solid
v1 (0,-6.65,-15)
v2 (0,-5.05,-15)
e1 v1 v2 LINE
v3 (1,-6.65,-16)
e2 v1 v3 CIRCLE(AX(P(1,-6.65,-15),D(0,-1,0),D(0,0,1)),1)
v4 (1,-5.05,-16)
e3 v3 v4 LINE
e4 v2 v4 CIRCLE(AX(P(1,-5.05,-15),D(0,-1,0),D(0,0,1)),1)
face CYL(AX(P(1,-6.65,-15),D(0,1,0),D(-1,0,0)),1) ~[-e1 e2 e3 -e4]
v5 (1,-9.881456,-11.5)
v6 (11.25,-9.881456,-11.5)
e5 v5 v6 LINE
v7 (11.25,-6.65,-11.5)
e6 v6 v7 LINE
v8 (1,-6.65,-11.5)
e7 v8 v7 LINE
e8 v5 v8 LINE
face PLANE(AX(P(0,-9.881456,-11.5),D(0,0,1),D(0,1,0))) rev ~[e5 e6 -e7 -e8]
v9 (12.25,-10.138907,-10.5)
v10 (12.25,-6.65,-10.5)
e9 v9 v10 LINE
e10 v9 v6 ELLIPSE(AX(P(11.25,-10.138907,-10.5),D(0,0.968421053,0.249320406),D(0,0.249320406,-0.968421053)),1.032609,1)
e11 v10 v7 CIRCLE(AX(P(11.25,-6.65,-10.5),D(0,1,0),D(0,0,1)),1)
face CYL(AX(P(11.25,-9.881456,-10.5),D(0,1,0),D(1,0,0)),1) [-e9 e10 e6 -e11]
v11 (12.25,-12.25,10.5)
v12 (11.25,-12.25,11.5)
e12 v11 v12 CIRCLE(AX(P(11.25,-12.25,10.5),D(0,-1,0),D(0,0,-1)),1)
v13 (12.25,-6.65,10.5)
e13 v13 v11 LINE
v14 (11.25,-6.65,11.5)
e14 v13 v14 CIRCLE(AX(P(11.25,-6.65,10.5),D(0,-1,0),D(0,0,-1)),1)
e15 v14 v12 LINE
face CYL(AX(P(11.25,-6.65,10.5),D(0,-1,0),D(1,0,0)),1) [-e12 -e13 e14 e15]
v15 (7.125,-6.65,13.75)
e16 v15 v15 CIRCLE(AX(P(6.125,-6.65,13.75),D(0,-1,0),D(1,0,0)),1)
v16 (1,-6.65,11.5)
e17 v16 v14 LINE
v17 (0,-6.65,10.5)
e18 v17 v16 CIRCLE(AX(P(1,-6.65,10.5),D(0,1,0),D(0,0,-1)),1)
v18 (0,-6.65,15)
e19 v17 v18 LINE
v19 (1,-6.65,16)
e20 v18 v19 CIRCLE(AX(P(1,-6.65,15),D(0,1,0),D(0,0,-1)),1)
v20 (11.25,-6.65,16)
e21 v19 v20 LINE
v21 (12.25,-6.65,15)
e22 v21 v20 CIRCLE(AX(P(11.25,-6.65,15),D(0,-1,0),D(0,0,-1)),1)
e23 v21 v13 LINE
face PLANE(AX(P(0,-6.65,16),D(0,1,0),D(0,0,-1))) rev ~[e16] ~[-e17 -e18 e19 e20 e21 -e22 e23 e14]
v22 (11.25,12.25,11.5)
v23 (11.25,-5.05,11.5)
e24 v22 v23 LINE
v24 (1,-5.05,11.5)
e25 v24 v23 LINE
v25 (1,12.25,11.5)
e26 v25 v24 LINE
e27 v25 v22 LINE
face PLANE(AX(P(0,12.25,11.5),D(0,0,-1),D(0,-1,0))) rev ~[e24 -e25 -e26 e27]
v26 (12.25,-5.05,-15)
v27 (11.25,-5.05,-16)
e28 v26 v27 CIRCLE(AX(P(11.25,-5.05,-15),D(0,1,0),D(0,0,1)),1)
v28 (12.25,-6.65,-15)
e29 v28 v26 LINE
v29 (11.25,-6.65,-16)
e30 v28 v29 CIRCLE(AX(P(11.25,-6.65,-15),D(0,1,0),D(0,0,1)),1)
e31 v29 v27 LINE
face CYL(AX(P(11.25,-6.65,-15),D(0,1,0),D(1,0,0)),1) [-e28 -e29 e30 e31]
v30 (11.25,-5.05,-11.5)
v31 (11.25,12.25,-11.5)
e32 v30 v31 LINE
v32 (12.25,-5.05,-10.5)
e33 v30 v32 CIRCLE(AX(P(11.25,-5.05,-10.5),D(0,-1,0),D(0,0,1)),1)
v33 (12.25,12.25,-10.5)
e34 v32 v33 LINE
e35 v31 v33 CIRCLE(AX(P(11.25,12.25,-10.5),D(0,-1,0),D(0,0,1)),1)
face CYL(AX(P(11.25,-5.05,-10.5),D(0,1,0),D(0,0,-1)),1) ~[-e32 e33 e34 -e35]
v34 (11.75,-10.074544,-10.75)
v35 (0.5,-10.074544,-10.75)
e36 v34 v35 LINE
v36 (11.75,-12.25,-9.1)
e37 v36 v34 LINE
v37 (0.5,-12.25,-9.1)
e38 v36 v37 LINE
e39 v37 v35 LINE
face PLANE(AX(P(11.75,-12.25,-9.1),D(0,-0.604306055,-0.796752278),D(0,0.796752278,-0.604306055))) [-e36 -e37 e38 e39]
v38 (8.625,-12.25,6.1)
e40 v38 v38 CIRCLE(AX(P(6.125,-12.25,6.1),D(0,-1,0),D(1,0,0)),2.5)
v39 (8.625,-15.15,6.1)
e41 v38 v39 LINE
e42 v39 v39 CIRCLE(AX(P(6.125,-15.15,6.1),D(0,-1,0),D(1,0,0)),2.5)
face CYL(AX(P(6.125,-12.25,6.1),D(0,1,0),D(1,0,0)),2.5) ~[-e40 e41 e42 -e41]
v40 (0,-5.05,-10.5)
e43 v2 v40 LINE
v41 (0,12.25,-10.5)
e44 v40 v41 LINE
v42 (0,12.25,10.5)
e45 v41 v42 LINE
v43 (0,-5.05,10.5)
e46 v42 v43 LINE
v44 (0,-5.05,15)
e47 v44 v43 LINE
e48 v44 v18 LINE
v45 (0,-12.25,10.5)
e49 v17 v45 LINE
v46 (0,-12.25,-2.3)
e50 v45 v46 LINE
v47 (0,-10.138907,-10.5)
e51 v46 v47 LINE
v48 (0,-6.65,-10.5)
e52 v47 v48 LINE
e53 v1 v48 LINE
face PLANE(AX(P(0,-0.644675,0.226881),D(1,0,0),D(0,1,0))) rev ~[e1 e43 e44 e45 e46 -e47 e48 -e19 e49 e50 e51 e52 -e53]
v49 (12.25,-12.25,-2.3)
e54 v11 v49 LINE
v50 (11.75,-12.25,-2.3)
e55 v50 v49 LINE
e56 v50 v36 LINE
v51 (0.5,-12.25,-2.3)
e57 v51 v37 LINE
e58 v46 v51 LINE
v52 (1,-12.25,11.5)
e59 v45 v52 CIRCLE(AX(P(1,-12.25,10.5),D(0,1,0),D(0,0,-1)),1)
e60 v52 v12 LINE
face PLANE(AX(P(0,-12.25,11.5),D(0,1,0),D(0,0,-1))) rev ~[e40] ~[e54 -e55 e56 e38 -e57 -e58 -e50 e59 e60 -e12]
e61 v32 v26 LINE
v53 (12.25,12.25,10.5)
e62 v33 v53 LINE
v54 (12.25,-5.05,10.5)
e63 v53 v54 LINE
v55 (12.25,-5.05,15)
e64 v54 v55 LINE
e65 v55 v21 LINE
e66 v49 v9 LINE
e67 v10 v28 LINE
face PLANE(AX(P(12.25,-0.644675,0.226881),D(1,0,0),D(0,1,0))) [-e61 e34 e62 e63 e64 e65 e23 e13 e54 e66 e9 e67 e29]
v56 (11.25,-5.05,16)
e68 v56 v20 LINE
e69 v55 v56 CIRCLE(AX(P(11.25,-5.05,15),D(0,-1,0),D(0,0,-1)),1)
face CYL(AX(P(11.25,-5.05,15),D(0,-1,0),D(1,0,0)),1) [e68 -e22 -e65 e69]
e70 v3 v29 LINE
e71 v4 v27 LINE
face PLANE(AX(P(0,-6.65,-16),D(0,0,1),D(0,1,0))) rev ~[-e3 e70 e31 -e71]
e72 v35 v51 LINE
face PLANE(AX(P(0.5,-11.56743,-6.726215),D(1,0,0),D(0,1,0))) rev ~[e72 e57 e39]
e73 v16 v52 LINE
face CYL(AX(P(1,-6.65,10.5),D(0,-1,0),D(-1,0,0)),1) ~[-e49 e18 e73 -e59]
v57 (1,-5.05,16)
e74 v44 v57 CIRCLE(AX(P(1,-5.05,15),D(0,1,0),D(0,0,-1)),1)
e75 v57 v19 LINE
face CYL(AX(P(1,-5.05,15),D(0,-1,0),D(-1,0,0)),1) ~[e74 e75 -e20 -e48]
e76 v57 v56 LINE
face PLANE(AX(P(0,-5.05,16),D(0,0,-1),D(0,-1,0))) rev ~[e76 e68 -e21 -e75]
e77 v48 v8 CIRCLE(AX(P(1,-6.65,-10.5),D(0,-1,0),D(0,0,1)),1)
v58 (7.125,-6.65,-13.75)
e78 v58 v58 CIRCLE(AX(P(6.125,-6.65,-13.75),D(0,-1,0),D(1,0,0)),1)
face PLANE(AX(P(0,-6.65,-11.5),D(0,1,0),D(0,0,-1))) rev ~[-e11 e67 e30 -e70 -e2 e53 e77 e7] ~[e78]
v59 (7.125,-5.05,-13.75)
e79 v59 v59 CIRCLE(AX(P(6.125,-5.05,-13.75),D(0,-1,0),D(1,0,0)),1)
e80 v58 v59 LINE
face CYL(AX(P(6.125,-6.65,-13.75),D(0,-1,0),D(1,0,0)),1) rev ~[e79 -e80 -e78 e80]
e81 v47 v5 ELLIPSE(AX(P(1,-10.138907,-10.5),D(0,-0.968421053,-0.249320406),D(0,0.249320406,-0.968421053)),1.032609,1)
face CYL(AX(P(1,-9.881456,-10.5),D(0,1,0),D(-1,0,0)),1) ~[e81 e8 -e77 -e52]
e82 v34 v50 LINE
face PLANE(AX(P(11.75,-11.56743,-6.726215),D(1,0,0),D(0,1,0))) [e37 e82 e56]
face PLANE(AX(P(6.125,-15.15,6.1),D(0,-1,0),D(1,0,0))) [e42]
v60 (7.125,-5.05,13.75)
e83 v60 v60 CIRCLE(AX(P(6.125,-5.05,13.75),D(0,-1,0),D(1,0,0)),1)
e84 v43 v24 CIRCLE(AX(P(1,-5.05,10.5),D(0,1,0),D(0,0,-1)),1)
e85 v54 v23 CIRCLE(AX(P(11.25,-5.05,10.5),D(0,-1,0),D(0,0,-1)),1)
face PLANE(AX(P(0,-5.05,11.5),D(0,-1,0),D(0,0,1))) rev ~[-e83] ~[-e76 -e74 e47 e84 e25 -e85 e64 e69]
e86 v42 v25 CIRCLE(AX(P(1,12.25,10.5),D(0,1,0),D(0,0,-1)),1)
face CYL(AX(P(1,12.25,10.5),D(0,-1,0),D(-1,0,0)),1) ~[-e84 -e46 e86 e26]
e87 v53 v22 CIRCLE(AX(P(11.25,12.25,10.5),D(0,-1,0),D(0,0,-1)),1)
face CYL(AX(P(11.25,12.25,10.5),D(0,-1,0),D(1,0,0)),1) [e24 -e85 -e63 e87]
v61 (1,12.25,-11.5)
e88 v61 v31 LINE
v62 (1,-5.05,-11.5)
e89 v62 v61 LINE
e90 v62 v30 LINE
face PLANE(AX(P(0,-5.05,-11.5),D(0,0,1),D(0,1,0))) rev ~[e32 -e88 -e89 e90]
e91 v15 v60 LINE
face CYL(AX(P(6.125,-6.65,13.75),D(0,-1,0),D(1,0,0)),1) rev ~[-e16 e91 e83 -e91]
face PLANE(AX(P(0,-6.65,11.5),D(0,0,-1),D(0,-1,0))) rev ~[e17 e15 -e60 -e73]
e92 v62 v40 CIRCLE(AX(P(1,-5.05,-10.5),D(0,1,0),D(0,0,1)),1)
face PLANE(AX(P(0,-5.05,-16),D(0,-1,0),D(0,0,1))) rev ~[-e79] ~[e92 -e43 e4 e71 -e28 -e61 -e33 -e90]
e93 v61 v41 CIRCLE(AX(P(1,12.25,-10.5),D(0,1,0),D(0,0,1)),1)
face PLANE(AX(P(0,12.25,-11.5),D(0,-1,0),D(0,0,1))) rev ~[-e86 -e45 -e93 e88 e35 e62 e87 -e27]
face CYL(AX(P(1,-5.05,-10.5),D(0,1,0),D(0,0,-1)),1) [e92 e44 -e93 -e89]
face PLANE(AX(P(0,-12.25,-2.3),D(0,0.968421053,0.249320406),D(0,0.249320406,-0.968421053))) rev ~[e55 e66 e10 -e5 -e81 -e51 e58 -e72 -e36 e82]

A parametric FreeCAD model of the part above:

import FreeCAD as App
import Part
import Sketcher
from FreeCAD import Vector


def edges_at(feature, points):
    """Names of the edges that pass closest to the given points."""
    edges = feature.Shape.Edges
    near = lambda p: min(range(len(edges)), key=lambda i: edges[i].distToShape(Part.Vertex(*p))[0])
    return sorted({f"Edge{near(p) + 1}" for p in points})


def add_polygon(sketch, points):
    """Adds a closed chain of lines whose ends are joined by coincident constraints."""
    first, n = sketch.GeometryCount, len(points)
    for a, b in zip(points, points[1:] + points[:1]):
        sketch.addGeometry(Part.LineSegment(App.Vector(*a, 0), App.Vector(*b, 0)), False)
    for i in range(n):
        sketch.addConstraint(Sketcher.Constraint("Coincident", first + i, 2, first + (i + 1) % n, 1))

doc = App.newDocument("Part")
body = doc.addObject("PartDesign::Body", "Body")

# Sketch on YZ plane
sketch1 = body.newObject("Sketcher::SketchObject", "Sketch")
sketch1.AttachmentSupport = (doc.getObject("YZ_Plane"), [""])
sketch1.MapMode = "FlatFace"
add_polygon(sketch1, [(-5, -11.5), (12.2, -11.5), (12.2, 11.5), (-5, 11.5), (-5, 16), (-6.7, 16), (-6.7, 11.5), (-12.2, 11.5), (-12.2, -2.3), (-9.9, -11.5), (-6.7, -11.5), (-6.7, -16), (-5, -16)])  # lines 0-12
sketch1.addConstraint(Sketcher.Constraint("Horizontal", 0))
sketch1.addConstraint(Sketcher.Constraint("Vertical", 1))
sketch1.addConstraint(Sketcher.Constraint("Horizontal", 2))
sketch1.addConstraint(Sketcher.Constraint("Vertical", 3))
sketch1.addConstraint(Sketcher.Constraint("Horizontal", 4))
sketch1.addConstraint(Sketcher.Constraint("Vertical", 5))
sketch1.addConstraint(Sketcher.Constraint("Horizontal", 6))
sketch1.addConstraint(Sketcher.Constraint("Vertical", 7))
sketch1.addConstraint(Sketcher.Constraint("Horizontal", 9))
sketch1.addConstraint(Sketcher.Constraint("Vertical", 10))
sketch1.addConstraint(Sketcher.Constraint("Horizontal", 11))
sketch1.addConstraint(Sketcher.Constraint("Vertical", 12))
sketch1.addConstraint(Sketcher.Constraint("Symmetric", 0, 2, 6, 2, -1, 1))
sketch1.addConstraint(Sketcher.Constraint("Symmetric", 5, 2, 9, 2, -1))
sketch1.addConstraint(Sketcher.Constraint("Symmetric", 3, 2, 11, 2, -1))
sketch1.addConstraint(Sketcher.Constraint("Horizontal", 2, 2, 5, 2))
sketch1.addConstraint(Sketcher.Constraint("DistanceY", 1, 1, 1, 2, 23.0))
sketch1.addConstraint(Sketcher.Constraint("DistanceX", 0, 1, 0, 2, 17.3))
sketch1.addConstraint(Sketcher.Constraint("DistanceX", 4, 2, 4, 1, 1.6))
sketch1.addConstraint(Sketcher.Constraint("DistanceX", 6, 2, 6, 1, 5.6))
sketch1.addConstraint(Sketcher.Constraint("DistanceY", 3, 1, 3, 2, 4.5))
sketch1.addConstraint(Sketcher.Constraint("DistanceY", 7, 2, 7, 1, 13.8))
sketch1.addConstraint(Sketcher.Constraint("Distance", 8, 9.5))
pad1 = body.newObject("PartDesign::Pad", "Pad")
pad1.Profile = sketch1
pad1.Length = 12.25

# Sketch on YZ plane
sketch2 = body.newObject("Sketcher::SketchObject", "Sketch001")
sketch2.AttachmentSupport = (doc.getObject("YZ_Plane"), [""])
sketch2.MapMode = "FlatFace"
sketch2.AttachmentOffset = App.Placement(Vector(0, 0, 11.75), App.Rotation())
add_polygon(sketch2, [(-10.1, -10.8), (-12.2, -2.3), (-12.2, -9.1)])  # lines 0-2
sketch2.addConstraint(Sketcher.Constraint("Vertical", 1))
sketch2.addConstraint(Sketcher.Constraint("DistanceY", 1, 2, 1, 1, 6.8))
sketch2.addConstraint(Sketcher.Constraint("DistanceY", 0, 2, -1, 1, 2.3))
sketch2.addConstraint(Sketcher.Constraint("DistanceX", 0, 2, -1, 1, 12.25))
sketch2.addConstraint(Sketcher.Constraint("DistanceY", 2, 2, -1, 1, 10.75))
sketch2.addConstraint(Sketcher.Constraint("Distance", 0, 8.725543))
pad2 = body.newObject("PartDesign::Pad", "Pad001")
pad2.Profile = sketch2
pad2.Length = 11.25
pad2.Reversed = True

# Sketch on XZ plane
sketch3 = body.newObject("Sketcher::SketchObject", "Sketch002")
sketch3.AttachmentSupport = (doc.getObject("XZ_Plane"), [""])
sketch3.MapMode = "FlatFace"
sketch3.AttachmentOffset = App.Placement(Vector(0, 0, 12.25), App.Rotation())
sketch3.addGeometry(Part.Circle(Vector(6.1, 6.1, 0), Vector(0, 0, 1), 2.5), False)
sketch3.addConstraint(Sketcher.Constraint("Diameter", 0, 5.0))
sketch3.addConstraint(Sketcher.Constraint("DistanceY", -1, 1, 0, 3, 6.1))
sketch3.addConstraint(Sketcher.Constraint("DistanceX", -1, 1, 0, 3, 6.125))
pad3 = body.newObject("PartDesign::Pad", "Pad002")
pad3.Profile = sketch3
pad3.Length = 2.9

# Sketch on XZ plane
sketch4 = body.newObject("Sketcher::SketchObject", "Sketch003")
sketch4.AttachmentSupport = (doc.getObject("XZ_Plane"), [""])
sketch4.MapMode = "FlatFace"
sketch4.AttachmentOffset = App.Placement(Vector(0, 0, 6.65), App.Rotation())
sketch4.addGeometry(Part.Circle(Vector(6.1, 13.8, 0), Vector(0, 0, 1), 1), False)
sketch4.addGeometry(Part.Circle(Vector(6.1, -13.8, 0), Vector(0, 0, 1), 1), False)
sketch4.addConstraint(Sketcher.Constraint("Equal", 0, 1))
sketch4.addConstraint(Sketcher.Constraint("Symmetric", 0, 3, 1, 3, -1))
sketch4.addConstraint(Sketcher.Constraint("Diameter", 0, 2.0))
sketch4.addConstraint(Sketcher.Constraint("DistanceY", 1, 3, 0, 3, 27.5))
sketch4.addConstraint(Sketcher.Constraint("DistanceX", -1, 1, 0, 3, 6.125))
pocket1 = body.newObject("PartDesign::Pocket", "Pocket")
pocket1.Profile = sketch4
pocket1.Type = "ThroughAll"
doc.recompute()

fillet = body.newObject("PartDesign::Fillet", "Fillet")
fillet.Base = (pocket1, edges_at(pocket1, [
    (12.25, 3.6, 11.5),
    (12.25, -9.45, 11.5),
    (12.25, 3.6, -11.5),
    (12.25, -8.266, -11.5),
    (0, -8.266, -11.5),
    (0, 3.6, -11.5),
    (0, 3.6, 11.5),
    (0, -9.45, 11.5),
    (0, -5.85, 16),
    (12.25, -5.85, 16),
    (0, -5.85, -16),
    (12.25, -5.85, -16),
]))
fillet.Radius = 1

doc.recompute()
